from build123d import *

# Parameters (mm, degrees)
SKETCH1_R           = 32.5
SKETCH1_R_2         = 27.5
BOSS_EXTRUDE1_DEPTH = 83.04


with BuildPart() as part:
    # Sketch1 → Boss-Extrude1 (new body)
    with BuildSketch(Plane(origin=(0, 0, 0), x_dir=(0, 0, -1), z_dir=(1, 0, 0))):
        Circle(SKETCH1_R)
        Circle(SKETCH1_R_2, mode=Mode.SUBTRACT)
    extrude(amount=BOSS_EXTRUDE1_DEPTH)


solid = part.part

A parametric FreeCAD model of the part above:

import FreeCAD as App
import Part
import Sketcher

V = App.Vector

doc = App.newDocument("Part")
body = doc.addObject("PartDesign::Body", "Body")

sketch1 = body.newObject("Sketcher::SketchObject", "Sketch")
sketch1.AttachmentSupport = (doc.getObject("YZ_Plane"), [""])
sketch1.MapMode = "FlatFace"
sketch1.addGeometry(Part.Circle(V(0, 0, 0), V(0, 0, 1), 32), False)
sketch1.addGeometry(Part.Circle(V(0, 0, 0), V(0, 0, 1), 28), False)
sketch1.addConstraint(Sketcher.Constraint("Coincident", 0, 3, -1, 1))
sketch1.addConstraint(Sketcher.Constraint("Coincident", 1, 3, -1, 1))
sketch1.addConstraint(Sketcher.Constraint("Diameter", 0, 65.0))
sketch1.addConstraint(Sketcher.Constraint("Diameter", 1, 55.0))
pad1 = body.newObject("PartDesign::Pad", "Pad")
pad1.Profile = sketch1
pad1.Length = 83.04

doc.recompute()
